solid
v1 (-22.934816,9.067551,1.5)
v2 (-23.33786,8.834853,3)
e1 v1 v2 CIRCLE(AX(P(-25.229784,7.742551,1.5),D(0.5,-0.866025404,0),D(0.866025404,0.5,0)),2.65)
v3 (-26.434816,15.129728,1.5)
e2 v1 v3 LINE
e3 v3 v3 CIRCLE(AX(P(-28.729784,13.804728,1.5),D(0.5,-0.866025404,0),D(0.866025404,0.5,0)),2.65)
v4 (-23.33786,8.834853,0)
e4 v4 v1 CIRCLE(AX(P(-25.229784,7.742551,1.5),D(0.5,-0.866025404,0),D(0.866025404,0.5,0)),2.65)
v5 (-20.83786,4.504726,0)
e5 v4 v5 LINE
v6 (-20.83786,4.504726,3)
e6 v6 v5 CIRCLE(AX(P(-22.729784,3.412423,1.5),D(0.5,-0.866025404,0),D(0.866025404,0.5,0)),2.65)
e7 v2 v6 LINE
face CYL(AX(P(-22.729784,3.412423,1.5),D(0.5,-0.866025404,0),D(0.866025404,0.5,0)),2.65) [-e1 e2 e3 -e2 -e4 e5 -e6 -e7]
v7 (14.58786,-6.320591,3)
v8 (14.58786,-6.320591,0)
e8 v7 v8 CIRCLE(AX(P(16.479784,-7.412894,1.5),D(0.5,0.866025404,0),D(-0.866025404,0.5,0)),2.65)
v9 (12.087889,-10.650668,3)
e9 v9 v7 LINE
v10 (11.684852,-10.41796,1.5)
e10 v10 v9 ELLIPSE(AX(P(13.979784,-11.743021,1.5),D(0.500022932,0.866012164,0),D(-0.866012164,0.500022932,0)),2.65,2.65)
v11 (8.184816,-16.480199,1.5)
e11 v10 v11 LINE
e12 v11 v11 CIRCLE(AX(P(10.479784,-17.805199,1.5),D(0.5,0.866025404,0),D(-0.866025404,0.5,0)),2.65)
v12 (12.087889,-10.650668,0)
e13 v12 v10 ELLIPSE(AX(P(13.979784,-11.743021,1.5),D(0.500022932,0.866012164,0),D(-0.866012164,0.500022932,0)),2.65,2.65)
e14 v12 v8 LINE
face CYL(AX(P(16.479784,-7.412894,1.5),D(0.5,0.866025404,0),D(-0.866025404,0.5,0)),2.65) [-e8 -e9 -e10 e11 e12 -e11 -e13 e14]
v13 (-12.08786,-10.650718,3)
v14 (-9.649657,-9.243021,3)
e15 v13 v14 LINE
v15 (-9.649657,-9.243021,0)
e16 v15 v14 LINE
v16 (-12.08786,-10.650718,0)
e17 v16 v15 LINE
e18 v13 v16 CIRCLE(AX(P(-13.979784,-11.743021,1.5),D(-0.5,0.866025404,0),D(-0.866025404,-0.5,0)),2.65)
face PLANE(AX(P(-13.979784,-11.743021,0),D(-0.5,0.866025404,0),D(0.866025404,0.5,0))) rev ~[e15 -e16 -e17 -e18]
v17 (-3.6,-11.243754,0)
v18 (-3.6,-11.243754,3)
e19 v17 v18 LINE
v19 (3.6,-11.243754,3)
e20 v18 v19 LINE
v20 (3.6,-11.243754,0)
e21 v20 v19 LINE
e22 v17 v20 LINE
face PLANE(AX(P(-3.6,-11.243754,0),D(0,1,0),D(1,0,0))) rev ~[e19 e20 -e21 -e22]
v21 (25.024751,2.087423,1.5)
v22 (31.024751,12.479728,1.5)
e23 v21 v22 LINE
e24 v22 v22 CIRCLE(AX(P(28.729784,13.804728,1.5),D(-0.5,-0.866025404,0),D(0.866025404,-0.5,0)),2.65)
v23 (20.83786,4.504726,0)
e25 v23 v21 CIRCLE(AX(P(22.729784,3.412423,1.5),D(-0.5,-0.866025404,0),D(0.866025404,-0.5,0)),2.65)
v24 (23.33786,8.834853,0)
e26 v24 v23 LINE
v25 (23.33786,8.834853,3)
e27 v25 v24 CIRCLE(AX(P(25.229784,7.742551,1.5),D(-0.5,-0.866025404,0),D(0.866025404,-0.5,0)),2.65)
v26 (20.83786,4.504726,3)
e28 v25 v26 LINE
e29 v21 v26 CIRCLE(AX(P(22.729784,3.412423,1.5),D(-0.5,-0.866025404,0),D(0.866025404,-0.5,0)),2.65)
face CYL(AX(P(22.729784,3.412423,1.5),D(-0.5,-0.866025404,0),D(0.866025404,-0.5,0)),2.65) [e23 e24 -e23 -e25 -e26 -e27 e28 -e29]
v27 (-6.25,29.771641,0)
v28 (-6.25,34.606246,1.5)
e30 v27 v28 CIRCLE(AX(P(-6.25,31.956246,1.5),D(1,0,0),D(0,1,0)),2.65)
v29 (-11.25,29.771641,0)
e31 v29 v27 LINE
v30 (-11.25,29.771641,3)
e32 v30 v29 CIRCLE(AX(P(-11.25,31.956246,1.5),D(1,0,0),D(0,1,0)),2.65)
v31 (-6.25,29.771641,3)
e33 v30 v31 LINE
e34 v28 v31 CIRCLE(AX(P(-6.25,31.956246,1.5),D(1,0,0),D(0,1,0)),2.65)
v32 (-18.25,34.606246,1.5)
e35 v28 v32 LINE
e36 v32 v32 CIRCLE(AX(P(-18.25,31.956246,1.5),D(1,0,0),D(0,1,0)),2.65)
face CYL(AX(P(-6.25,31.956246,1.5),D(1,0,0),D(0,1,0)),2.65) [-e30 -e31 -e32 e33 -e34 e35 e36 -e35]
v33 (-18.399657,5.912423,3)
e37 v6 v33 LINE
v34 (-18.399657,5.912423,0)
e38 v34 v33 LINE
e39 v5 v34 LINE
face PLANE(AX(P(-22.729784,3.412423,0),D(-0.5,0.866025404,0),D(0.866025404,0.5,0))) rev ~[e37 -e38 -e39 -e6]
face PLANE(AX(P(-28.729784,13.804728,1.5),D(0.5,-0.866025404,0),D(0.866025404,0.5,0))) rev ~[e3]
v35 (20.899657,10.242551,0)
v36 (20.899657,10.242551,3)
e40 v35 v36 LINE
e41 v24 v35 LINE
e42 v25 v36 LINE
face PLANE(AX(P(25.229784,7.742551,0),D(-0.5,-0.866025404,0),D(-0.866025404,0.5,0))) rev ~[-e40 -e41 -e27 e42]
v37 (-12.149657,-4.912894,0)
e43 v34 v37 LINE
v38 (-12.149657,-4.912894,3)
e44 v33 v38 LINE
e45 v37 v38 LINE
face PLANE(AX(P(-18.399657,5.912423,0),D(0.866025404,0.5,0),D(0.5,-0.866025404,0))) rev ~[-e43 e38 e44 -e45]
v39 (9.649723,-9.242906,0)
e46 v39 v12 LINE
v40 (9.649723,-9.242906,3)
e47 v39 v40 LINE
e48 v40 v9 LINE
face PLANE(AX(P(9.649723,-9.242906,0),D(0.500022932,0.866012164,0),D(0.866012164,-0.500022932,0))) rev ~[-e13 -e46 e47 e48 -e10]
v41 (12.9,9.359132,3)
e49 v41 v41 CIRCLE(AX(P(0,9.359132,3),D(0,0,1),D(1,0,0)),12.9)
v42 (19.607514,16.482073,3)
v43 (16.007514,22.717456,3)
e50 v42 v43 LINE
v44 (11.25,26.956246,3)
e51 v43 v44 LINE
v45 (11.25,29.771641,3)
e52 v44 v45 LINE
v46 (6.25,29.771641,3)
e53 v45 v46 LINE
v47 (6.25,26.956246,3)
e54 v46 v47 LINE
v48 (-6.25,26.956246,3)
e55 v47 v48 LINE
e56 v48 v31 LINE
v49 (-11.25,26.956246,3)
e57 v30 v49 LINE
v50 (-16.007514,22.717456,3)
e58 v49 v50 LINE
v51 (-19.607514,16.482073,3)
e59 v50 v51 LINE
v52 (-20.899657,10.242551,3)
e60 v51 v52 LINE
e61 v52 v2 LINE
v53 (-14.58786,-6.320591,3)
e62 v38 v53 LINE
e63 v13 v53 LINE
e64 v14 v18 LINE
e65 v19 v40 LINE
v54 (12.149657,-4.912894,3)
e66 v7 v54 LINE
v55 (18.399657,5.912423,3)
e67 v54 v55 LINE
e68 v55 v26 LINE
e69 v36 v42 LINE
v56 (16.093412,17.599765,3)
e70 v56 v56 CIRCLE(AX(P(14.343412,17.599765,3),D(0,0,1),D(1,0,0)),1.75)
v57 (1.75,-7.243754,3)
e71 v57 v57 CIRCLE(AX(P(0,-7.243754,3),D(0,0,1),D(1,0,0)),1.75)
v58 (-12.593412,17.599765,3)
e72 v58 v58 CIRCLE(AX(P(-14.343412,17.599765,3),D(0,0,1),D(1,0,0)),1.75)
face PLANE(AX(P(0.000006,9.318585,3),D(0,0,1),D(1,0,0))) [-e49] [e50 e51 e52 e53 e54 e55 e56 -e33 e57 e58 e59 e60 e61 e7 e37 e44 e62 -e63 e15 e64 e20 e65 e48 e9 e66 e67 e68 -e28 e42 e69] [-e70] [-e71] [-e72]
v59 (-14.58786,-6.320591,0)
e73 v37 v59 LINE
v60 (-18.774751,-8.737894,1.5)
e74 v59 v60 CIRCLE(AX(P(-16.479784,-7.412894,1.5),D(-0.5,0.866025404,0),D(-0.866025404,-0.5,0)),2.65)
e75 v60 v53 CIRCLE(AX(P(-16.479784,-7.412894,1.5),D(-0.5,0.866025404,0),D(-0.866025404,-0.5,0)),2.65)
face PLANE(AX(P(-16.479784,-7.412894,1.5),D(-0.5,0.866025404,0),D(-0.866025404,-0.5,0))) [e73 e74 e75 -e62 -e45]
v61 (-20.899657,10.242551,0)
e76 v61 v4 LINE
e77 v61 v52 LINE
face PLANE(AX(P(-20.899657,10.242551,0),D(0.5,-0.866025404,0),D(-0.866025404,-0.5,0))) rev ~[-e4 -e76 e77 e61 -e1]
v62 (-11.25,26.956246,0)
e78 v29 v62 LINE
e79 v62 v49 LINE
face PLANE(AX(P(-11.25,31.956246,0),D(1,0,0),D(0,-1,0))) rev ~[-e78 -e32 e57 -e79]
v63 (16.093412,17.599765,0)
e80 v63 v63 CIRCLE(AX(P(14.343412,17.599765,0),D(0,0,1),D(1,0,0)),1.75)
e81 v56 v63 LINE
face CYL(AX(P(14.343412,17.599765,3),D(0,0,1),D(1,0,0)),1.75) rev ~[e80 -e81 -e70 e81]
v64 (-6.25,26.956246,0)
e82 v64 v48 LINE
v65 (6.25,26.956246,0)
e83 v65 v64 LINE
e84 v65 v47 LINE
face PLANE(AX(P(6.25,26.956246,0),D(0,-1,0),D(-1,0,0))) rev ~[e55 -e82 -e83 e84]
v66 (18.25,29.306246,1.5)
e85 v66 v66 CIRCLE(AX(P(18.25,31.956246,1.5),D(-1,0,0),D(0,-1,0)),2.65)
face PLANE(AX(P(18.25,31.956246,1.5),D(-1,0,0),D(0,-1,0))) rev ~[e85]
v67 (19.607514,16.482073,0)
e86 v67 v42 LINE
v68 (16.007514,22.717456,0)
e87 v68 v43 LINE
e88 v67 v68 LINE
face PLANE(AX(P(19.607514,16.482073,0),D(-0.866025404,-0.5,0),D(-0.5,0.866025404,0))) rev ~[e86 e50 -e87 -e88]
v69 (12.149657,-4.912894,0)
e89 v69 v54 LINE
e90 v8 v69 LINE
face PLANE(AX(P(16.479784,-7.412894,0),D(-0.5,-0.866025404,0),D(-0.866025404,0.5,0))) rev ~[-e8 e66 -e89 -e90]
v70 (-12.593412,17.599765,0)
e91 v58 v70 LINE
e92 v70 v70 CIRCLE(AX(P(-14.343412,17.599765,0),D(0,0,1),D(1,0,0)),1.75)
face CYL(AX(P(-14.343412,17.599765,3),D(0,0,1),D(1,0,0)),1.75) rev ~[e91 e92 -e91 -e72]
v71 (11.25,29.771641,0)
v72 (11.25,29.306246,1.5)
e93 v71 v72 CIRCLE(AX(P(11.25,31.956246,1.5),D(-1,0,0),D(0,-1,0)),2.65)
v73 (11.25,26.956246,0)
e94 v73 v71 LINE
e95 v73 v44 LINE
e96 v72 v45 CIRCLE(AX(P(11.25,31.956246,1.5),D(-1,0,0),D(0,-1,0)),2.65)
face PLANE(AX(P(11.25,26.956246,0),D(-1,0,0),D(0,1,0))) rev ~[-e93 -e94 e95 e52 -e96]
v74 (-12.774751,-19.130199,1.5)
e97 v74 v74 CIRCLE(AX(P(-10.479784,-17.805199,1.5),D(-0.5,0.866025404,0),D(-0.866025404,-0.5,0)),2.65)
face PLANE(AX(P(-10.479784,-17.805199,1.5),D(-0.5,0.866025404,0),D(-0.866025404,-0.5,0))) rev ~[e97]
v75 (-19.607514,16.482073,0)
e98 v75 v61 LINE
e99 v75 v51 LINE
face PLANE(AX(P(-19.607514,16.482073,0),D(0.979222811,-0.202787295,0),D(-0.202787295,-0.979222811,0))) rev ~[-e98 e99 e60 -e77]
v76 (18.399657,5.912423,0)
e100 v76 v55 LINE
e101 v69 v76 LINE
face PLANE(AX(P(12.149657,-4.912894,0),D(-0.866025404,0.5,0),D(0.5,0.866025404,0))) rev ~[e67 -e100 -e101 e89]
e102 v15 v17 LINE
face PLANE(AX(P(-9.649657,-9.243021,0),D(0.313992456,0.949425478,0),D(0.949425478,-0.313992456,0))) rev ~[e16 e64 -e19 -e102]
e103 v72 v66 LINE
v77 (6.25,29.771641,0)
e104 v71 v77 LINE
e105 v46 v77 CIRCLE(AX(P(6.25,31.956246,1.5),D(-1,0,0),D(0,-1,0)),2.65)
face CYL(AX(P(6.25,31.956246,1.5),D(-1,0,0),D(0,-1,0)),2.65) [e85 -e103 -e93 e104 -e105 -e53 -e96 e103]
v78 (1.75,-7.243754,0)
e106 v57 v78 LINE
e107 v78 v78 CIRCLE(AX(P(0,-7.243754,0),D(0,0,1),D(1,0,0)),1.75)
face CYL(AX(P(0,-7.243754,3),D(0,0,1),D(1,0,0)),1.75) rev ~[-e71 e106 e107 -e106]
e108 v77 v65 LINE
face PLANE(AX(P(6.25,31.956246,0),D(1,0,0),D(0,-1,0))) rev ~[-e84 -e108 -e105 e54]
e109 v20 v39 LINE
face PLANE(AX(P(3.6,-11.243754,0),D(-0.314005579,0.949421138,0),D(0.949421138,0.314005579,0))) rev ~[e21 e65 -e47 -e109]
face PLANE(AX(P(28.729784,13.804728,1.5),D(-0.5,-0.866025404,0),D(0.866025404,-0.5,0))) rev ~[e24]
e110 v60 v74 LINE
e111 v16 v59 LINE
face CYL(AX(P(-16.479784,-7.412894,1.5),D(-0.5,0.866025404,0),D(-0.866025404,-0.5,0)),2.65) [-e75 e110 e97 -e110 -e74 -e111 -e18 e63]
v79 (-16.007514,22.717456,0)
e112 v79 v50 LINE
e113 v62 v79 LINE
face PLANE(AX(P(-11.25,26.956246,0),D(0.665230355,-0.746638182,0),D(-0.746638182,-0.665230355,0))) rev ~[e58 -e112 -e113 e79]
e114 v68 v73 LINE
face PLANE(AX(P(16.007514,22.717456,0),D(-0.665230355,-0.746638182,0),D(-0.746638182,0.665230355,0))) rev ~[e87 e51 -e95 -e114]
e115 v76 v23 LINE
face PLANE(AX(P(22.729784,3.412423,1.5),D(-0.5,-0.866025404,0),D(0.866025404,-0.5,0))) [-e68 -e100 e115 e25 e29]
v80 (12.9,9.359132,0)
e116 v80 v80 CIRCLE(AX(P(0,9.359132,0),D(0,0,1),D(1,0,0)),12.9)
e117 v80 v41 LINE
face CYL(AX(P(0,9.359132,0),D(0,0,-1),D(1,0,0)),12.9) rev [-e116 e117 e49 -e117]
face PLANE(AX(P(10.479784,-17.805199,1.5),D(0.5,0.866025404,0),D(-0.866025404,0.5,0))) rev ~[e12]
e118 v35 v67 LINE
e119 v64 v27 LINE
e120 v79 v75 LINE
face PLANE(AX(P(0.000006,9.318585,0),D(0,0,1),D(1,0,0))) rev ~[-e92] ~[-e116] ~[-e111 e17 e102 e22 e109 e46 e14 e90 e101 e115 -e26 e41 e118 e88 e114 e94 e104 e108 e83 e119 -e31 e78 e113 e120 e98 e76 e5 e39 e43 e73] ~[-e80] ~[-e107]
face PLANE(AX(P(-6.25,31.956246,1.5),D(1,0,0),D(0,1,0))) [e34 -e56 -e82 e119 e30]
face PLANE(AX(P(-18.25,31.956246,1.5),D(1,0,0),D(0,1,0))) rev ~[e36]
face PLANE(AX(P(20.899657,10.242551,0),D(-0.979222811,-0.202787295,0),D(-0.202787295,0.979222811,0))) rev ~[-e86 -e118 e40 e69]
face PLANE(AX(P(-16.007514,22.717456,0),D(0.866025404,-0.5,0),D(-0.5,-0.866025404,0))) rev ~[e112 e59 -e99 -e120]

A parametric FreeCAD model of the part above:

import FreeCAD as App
import Part
import Sketcher
from FreeCAD import Vector
Q = App.Units.Quantity

doc = App.newDocument("Part")
body = doc.addObject("PartDesign::Body", "Body")

# Sketch on XY plane
sketch1 = body.newObject("Sketcher::SketchObject", "Sketch")
sketch1.AttachmentSupport = (doc.getObject("XY_Plane"), [""])
sketch1.MapMode = "FlatFace"
sketch1.addGeometry([
    Part.LineSegment(Vector(16, 22.7, 0), Vector(11.2, 27, 0)),  # 0
    Part.LineSegment(Vector(11.2, 27, 0), Vector(11.2, 32, 0)),  # 1
    Part.LineSegment(Vector(11.2, 32, 0), Vector(6.2, 32, 0)),  # 2
    Part.LineSegment(Vector(6.2, 32, 0), Vector(6.2, 27, 0)),  # 3
    Part.LineSegment(Vector(6.2, 27, 0), Vector(-6.2, 27, 0)),  # 4
    Part.LineSegment(Vector(-6.2, 27, 0), Vector(-6.2, 32, 0)),  # 5
    Part.LineSegment(Vector(-6.2, 32, 0), Vector(-11.2, 32, 0)),  # 6
    Part.LineSegment(Vector(-11.2, 32, 0), Vector(-11.2, 27, 0)),  # 7
    Part.LineSegment(Vector(-11.2, 27, 0), Vector(-16, 22.7, 0)),  # 8
    Part.LineSegment(Vector(-16, 22.7, 0), Vector(-19.6, 16.5, 0)),  # 9
    Part.LineSegment(Vector(-19.6, 16.5, 0), Vector(-20.9, 10.2, 0)),  # 10
    Part.LineSegment(Vector(-20.9, 10.2, 0), Vector(-25.2, 7.7, 0)),  # 11
    Part.LineSegment(Vector(-25.2, 7.7, 0), Vector(-22.7, 3.4, 0)),  # 12
    Part.LineSegment(Vector(-22.7, 3.4, 0), Vector(-18.4, 5.9, 0)),  # 13
    Part.LineSegment(Vector(-18.4, 5.9, 0), Vector(-12.1, -4.9, 0)),  # 14
    Part.LineSegment(Vector(-12.1, -4.9, 0), Vector(-16.5, -7.4, 0)),  # 15
    Part.LineSegment(Vector(-16.5, -7.4, 0), Vector(-14, -11.7, 0)),  # 16
    Part.LineSegment(Vector(-14, -11.7, 0), Vector(-9.6, -9.2, 0)),  # 17
    Part.LineSegment(Vector(-9.6, -9.2, 0), Vector(-3.6, -11.2, 0)),  # 18
    Part.LineSegment(Vector(-3.6, -11.2, 0), Vector(3.6, -11.2, 0)),  # 19
    Part.LineSegment(Vector(3.6, -11.2, 0), Vector(9.6, -9.2, 0)),  # 20
    Part.LineSegment(Vector(9.6, -9.2, 0), Vector(14, -11.7, 0)),  # 21
    Part.LineSegment(Vector(14, -11.7, 0), Vector(16.5, -7.4, 0)),  # 22
    Part.LineSegment(Vector(16.5, -7.4, 0), Vector(12.1, -4.9, 0)),  # 23
    Part.LineSegment(Vector(12.1, -4.9, 0), Vector(18.4, 5.9, 0)),  # 24
    Part.LineSegment(Vector(18.4, 5.9, 0), Vector(22.7, 3.4, 0)),  # 25
    Part.LineSegment(Vector(22.7, 3.4, 0), Vector(25.2, 7.7, 0)),  # 26
    Part.LineSegment(Vector(25.2, 7.7, 0), Vector(20.9, 10.2, 0)),  # 27
    Part.LineSegment(Vector(20.9, 10.2, 0), Vector(19.6, 16.5, 0)),  # 28
    Part.LineSegment(Vector(19.6, 16.5, 0), Vector(16, 22.7, 0)),  # 29
    Part.Circle(Vector(0, 9.4, 0), Vector(0, 0, 1), 12.9),  # 30
], False)
sketch1.addConstraint([
    Sketcher.Constraint("Coincident", 0, 2, 1, 1),
    Sketcher.Constraint("Coincident", 1, 2, 2, 1),
    Sketcher.Constraint("Coincident", 2, 2, 3, 1),
    Sketcher.Constraint("Coincident", 3, 2, 4, 1),
    Sketcher.Constraint("Coincident", 4, 2, 5, 1),
    Sketcher.Constraint("Coincident", 5, 2, 6, 1),
    Sketcher.Constraint("Coincident", 6, 2, 7, 1),
    Sketcher.Constraint("Coincident", 7, 2, 8, 1),
    Sketcher.Constraint("Coincident", 8, 2, 9, 1),
    Sketcher.Constraint("Coincident", 9, 2, 10, 1),
    Sketcher.Constraint("Coincident", 10, 2, 11, 1),
    Sketcher.Constraint("Coincident", 11, 2, 12, 1),
    Sketcher.Constraint("Coincident", 12, 2, 13, 1),
    Sketcher.Constraint("Coincident", 13, 2, 14, 1),
    Sketcher.Constraint("Coincident", 14, 2, 15, 1),
    Sketcher.Constraint("Coincident", 15, 2, 16, 1),
    Sketcher.Constraint("Coincident", 16, 2, 17, 1),
    Sketcher.Constraint("Coincident", 17, 2, 18, 1),
    Sketcher.Constraint("Coincident", 18, 2, 19, 1),
    Sketcher.Constraint("Coincident", 19, 2, 20, 1),
    Sketcher.Constraint("Coincident", 20, 2, 21, 1),
    Sketcher.Constraint("Coincident", 21, 2, 22, 1),
    Sketcher.Constraint("Coincident", 22, 2, 23, 1),
    Sketcher.Constraint("Coincident", 23, 2, 24, 1),
    Sketcher.Constraint("Coincident", 24, 2, 25, 1),
    Sketcher.Constraint("Coincident", 25, 2, 26, 1),
    Sketcher.Constraint("Coincident", 26, 2, 27, 1),
    Sketcher.Constraint("Coincident", 27, 2, 28, 1),
    Sketcher.Constraint("Coincident", 28, 2, 29, 1),
    Sketcher.Constraint("Coincident", 29, 2, 0, 1),
    Sketcher.Constraint("Vertical", 1),
    Sketcher.Constraint("Horizontal", 2),
    Sketcher.Constraint("Vertical", 3),
    Sketcher.Constraint("Horizontal", 4),
    Sketcher.Constraint("Vertical", 5),
    Sketcher.Constraint("Horizontal", 6),
    Sketcher.Constraint("Vertical", 7),
    Sketcher.Constraint("Horizontal", 19),
    Sketcher.Constraint("Symmetric", 2, 2, 5, 2, -2),
    Sketcher.Constraint("Symmetric", 0, 2, 7, 2, -2),
    Sketcher.Constraint("Symmetric", 16, 2, 21, 2, -2),
    Sketcher.Constraint("Symmetric", 15, 2, 22, 2, -2),
    Sketcher.Constraint("Symmetric", 14, 2, 23, 2, -2),
    Sketcher.Constraint("Symmetric", 13, 2, 24, 2, -2),
    Sketcher.Constraint("Symmetric", 12, 2, 25, 2, -2),
    Sketcher.Constraint("Symmetric", 11, 2, 26, 2, -2),
    Sketcher.Constraint("Symmetric", 10, 2, 27, 2, -2),
    Sketcher.Constraint("Symmetric", 9, 2, 28, 2, -2),
    Sketcher.Constraint("Symmetric", 8, 2, 29, 2, -2),
    Sketcher.Constraint("PointOnObject", 30, 3, -2),
    Sketcher.Constraint("Perpendicular", 11, 12),
    Sketcher.Constraint("Perpendicular", 12, 13),
    Sketcher.Constraint("Perpendicular", 13, 14),
    Sketcher.Constraint("Perpendicular", 14, 15),
    Sketcher.Constraint("Perpendicular", 15, 16),
    Sketcher.Constraint("Perpendicular", 16, 17),
    Sketcher.Constraint("Parallel", 9, 22),
    Sketcher.Constraint("Horizontal", 0, 2, 3, 2),
    Sketcher.Constraint("Equal", 6, 1),
    Sketcher.Constraint("Equal", 8, 10),
    Sketcher.Constraint("Equal", 11, 12),
    Sketcher.Constraint("Equal", 12, 13),
    Sketcher.Constraint("Equal", 13, 15),
    Sketcher.Constraint("Equal", 15, 16),
    Sketcher.Constraint("Equal", 16, 17),
    Sketcher.Constraint("Equal", 10, 18),
    Sketcher.Constraint("Equal", 17, 21),
    Sketcher.Constraint("Diameter", 30, 25.8),
    Sketcher.Constraint("DistanceX", 2, 2, 2, 1, 5.0),
    Sketcher.Constraint("Angle", 9, Q("-120 deg")),
    Sketcher.Constraint("Distance", 11, 5.0),
    Sketcher.Constraint("DistanceX", 4, 2, 4, 1, 12.5),
    Sketcher.Constraint("DistanceX", 19, 1, 19, 2, 7.2),
    Sketcher.Constraint("Angle", 0, Q("138.3 deg")),
    Sketcher.Constraint("Angle", 10, Q("-101.7 deg")),
    Sketcher.Constraint("Angle", 18, Q("-18.3 deg")),
    Sketcher.Constraint("Distance", 9, 7.2),
    Sketcher.Constraint("Distance", 14, 12.5),
    Sketcher.Constraint("DistanceY", -1, 1, 10, 2, 10.242551),
    Sketcher.Constraint("DistanceY", 8, 2, 7, 2, 4.23879),
    Sketcher.Constraint("DistanceY", 30, 3, 10, 2, 0.883418),
    Sketcher.Constraint("DistanceX", 17, 2, 20, 2, 19.29938),
])
pad1 = body.newObject("PartDesign::Pad", "Pad")
pad1.Profile = sketch1
pad1.Length = 3

# Sketch on XY plane
sketch2 = body.newObject("Sketcher::SketchObject", "Sketch001")
sketch2.AttachmentSupport = (doc.getObject("XY_Plane"), [""])
sketch2.MapMode = "FlatFace"
sketch2.AttachmentOffset = App.Placement(Vector(0, 0, 3), App.Rotation())
sketch2.addGeometry([
    Part.Circle(Vector(-14.3, 17.6, 0), Vector(0, 0, 1), 1.8),
    Part.Circle(Vector(14.3, 17.6, 0), Vector(0, 0, 1), 1.8),
    Part.Circle(Vector(0, -7.2, 0), Vector(0, 0, 1), 1.8),
], False)
sketch2.addConstraint([
    Sketcher.Constraint("Equal", 0, 1),
    Sketcher.Constraint("Equal", 1, 2),
    Sketcher.Constraint("Symmetric", 0, 3, 1, 3, -2),
    Sketcher.Constraint("PointOnObject", 2, 3, -2),
    Sketcher.Constraint("Diameter", 0, 3.5),
    Sketcher.Constraint("DistanceY", 2, 3, 0, 3, 24.843518),
    Sketcher.Constraint("DistanceX", 0, 3, -1, 1, 14.343412),
    Sketcher.Constraint("DistanceY", -1, 1, 0, 3, 17.599765),
])
pocket1 = body.newObject("PartDesign::Pocket", "Pocket")
pocket1.Profile = sketch2
pocket1.Type = "ThroughAll"

# Sketch on YZ plane
sketch3 = body.newObject("Sketcher::SketchObject", "Sketch002")
sketch3.AttachmentSupport = (doc.getObject("YZ_Plane"), [""])
sketch3.MapMode = "FlatFace"
sketch3.AttachmentOffset = App.Placement(Vector(0, 0, 6.25), App.Rotation())
sketch3.addGeometry(Part.Circle(Vector(32, 1.5, 0), Vector(0, 0, 1), 2.6), False)
sketch3.addConstraint([
    Sketcher.Constraint("Diameter", 0, 5.3),
    Sketcher.Constraint("DistanceY", -1, 1, 0, 3, 1.5),
    Sketcher.Constraint("DistanceX", -1, 1, 0, 3, 31.956246),
])
pad2 = body.newObject("PartDesign::Pad", "Pad001")
pad2.Profile = sketch3
pad2.Length = 12

# Sketch on YZ plane
sketch4 = body.newObject("Sketcher::SketchObject", "Sketch003")
sketch4.AttachmentSupport = (doc.getObject("YZ_Plane"), [""])
sketch4.MapMode = "FlatFace"
sketch4.AttachmentOffset = App.Placement(Vector(0, 0, -6.25), App.Rotation())
sketch4.addGeometry(Part.Circle(Vector(32, 1.5, 0), Vector(0, 0, 1), 2.6), False)
sketch4.addConstraint([
    Sketcher.Constraint("Diameter", 0, 5.3),
    Sketcher.Constraint("DistanceY", -1, 1, 0, 3, 1.5),
    Sketcher.Constraint("DistanceX", -1, 1, 0, 3, 31.956246),
])
pad3 = body.newObject("PartDesign::Pad", "Pad002")
pad3.Profile = sketch4
pad3.Length = 12
pad3.Reversed = True

# Sketch on an angled plane
sketch5 = body.newObject("Sketcher::SketchObject", "Sketch004")
sketch5.Placement = App.Placement(Vector(-7.160069, 12.401603, 0), App.Rotation(Vector(0.866025404, 0.5, 0), Vector(0, 0, 1), Vector(0.5, -0.866025404, 0), "ZXY"))
sketch5.addGeometry(Part.Circle(Vector(-18, 1.5, 0), Vector(0, 0, 1), 2.6), False)
sketch5.addConstraint([
    Sketcher.Constraint("Diameter", 0, 5.3),
    Sketcher.Constraint("DistanceY", -1, 1, 0, 3, 1.5),
    Sketcher.Constraint("DistanceX", 0, 3, -1, 1, 17.978358),
])
pad4 = body.newObject("PartDesign::Pad", "Pad003")
pad4.Profile = sketch5
pad4.Length = 12
pad4.Reversed = True

# Sketch on an angled plane
sketch6 = body.newObject("Sketcher::SketchObject", "Sketch005")
sketch6.Placement = App.Placement(Vector(-0.910069, 1.576285, 0), App.Rotation(Vector(-0.866025404, -0.5, 0), Vector(0, 0, 1), Vector(-0.5, 0.866025404, 0), "ZXY"))
sketch6.addGeometry(Part.Circle(Vector(18, 1.5, 0), Vector(0, 0, 1), 2.6), False)
sketch6.addConstraint([
    Sketcher.Constraint("Diameter", 0, 5.3),
    Sketcher.Constraint("DistanceY", -1, 1, 0, 3, 1.5),
    Sketcher.Constraint("DistanceX", -1, 1, 0, 3, 17.978358),
])
pad5 = body.newObject("PartDesign::Pad", "Pad004")
pad5.Profile = sketch6
pad5.Length = 12
pad5.Reversed = True

# Sketch on an angled plane
sketch7 = body.newObject("Sketcher::SketchObject", "Sketch006")
sketch7.Placement = App.Placement(Vector(0.910069, 1.576285, 0), App.Rotation(Vector(-0.866025404, 0.5, 0), Vector(0, 0, 1), Vector(0.5, 0.866025404, 0), "ZXY"))
sketch7.addGeometry(Part.Circle(Vector(-18, 1.5, 0), Vector(0, 0, 1), 2.6), False)
sketch7.addConstraint([
    Sketcher.Constraint("Diameter", 0, 5.3),
    Sketcher.Constraint("DistanceY", -1, 1, 0, 3, 1.5),
    Sketcher.Constraint("DistanceX", 0, 3, -1, 1, 17.978358),
])
pad6 = body.newObject("PartDesign::Pad", "Pad005")
pad6.Profile = sketch7
pad6.Length = 12
pad6.Reversed = True

# Sketch on an angled plane
sketch8 = body.newObject("Sketcher::SketchObject", "Sketch007")
sketch8.Placement = App.Placement(Vector(7.160069, 12.401603, 0), App.Rotation(Vector(0.866025404, -0.5, 0), Vector(0, 0, 1), Vector(-0.5, -0.866025404, 0), "ZXY"))
sketch8.addGeometry(Part.Circle(Vector(18, 1.5, 0), Vector(0, 0, 1), 2.6), False)
sketch8.addConstraint([
    Sketcher.Constraint("Diameter", 0, 5.3),
    Sketcher.Constraint("DistanceY", -1, 1, 0, 3, 1.5),
    Sketcher.Constraint("DistanceX", -1, 1, 0, 3, 17.978358),
])
pad7 = body.newObject("PartDesign::Pad", "Pad006")
pad7.Profile = sketch8
pad7.Length = 12
pad7.Reversed = True

doc.recompute()
